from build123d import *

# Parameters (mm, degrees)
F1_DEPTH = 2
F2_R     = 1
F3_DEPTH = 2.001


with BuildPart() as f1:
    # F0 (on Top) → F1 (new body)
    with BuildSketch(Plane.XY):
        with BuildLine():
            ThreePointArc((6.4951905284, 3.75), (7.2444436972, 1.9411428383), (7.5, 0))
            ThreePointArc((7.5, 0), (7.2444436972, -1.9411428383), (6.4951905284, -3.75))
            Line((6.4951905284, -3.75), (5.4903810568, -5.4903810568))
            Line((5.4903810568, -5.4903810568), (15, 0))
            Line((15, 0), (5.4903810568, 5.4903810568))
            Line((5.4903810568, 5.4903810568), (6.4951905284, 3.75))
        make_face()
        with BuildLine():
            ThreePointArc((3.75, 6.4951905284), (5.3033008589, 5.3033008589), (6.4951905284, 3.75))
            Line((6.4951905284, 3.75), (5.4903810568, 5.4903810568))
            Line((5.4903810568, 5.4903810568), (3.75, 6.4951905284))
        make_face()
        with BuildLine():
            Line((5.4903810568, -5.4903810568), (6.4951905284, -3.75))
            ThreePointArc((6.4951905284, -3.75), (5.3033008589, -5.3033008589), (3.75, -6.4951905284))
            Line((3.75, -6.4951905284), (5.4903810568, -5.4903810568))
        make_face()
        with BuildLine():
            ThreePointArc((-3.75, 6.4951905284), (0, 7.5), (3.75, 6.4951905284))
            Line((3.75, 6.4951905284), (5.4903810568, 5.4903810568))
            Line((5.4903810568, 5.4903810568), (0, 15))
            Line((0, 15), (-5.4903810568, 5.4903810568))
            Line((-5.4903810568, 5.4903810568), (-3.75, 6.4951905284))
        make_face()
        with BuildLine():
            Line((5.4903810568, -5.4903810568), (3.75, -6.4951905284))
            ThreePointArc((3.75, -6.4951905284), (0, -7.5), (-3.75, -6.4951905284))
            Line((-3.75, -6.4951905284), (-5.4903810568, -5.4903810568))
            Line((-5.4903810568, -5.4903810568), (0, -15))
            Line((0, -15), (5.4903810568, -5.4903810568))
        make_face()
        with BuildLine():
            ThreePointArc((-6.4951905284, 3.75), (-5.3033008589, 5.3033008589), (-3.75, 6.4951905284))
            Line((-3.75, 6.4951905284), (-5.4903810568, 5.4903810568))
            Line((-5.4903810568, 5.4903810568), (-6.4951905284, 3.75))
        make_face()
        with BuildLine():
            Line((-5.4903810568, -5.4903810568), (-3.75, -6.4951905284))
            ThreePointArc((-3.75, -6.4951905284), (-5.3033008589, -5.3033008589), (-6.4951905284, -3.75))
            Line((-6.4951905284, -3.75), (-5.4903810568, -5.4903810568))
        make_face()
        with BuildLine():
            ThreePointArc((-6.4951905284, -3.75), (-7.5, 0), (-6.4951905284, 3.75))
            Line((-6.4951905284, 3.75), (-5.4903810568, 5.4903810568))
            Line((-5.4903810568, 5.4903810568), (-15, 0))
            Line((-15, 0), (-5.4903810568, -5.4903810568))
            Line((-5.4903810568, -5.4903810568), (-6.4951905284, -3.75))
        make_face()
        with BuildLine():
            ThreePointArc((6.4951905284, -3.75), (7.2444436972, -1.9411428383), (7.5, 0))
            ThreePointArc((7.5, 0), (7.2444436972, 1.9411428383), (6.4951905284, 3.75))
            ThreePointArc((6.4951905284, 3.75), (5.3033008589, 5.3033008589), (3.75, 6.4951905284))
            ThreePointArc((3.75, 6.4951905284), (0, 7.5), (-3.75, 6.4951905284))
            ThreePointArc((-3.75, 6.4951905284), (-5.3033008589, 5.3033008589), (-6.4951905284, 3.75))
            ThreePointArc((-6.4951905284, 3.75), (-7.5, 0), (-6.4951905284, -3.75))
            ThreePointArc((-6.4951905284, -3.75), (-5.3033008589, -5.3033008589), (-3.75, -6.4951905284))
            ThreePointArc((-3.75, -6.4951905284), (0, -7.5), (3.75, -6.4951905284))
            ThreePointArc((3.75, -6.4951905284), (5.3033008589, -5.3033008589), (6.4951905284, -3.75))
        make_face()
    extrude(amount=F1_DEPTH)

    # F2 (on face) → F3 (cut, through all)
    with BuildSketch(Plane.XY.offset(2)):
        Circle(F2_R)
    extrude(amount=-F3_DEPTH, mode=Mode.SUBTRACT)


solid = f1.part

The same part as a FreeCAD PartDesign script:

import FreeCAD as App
import Part
import Sketcher
Q = App.Units.Quantity

doc = App.newDocument("Part")
body = doc.addObject("PartDesign::Body", "Body")

# Sketch on XY plane
sketch1 = body.newObject("Sketcher::SketchObject", "Sketch")
sketch1.AttachmentSupport = (doc.getObject("XY_Plane"), [""])
sketch1.MapMode = "FlatFace"
sketch1.addGeometry([
    Part.LineSegment(App.Vector(-5.490381, -5.490381, 0), App.Vector(0, -15, 0)),  # 0
    Part.LineSegment(App.Vector(0, -15, 0), App.Vector(5.490381, -5.490381, 0)),  # 1
    Part.LineSegment(App.Vector(5.490381, -5.490381, 0), App.Vector(15, 0, 0)),  # 2
    Part.LineSegment(App.Vector(15, 0, 0), App.Vector(5.490381, 5.490381, 0)),  # 3
    Part.LineSegment(App.Vector(5.490381, 5.490381, 0), App.Vector(0, 15, 0)),  # 4
    Part.LineSegment(App.Vector(0, 15, 0), App.Vector(-5.490381, 5.490381, 0)),  # 5
    Part.LineSegment(App.Vector(-5.490381, 5.490381, 0), App.Vector(-15, 0, 0)),  # 6
    Part.LineSegment(App.Vector(-15, 0, 0), App.Vector(-5.490381, -5.490381, 0)),  # 7
], False)
sketch1.addConstraint([
    Sketcher.Constraint("Coincident", 0, 2, 1, 1),
    Sketcher.Constraint("Coincident", 1, 2, 2, 1),
    Sketcher.Constraint("Coincident", 2, 2, 3, 1),
    Sketcher.Constraint("Coincident", 3, 2, 4, 1),
    Sketcher.Constraint("Coincident", 4, 2, 5, 1),
    Sketcher.Constraint("Coincident", 5, 2, 6, 1),
    Sketcher.Constraint("Coincident", 6, 2, 7, 1),
    Sketcher.Constraint("Coincident", 7, 2, 0, 1),
    Sketcher.Constraint("Symmetric", 0, 2, 4, 2, -1, 1),
    Sketcher.Constraint("Symmetric", 1, 2, 5, 2, -1, 1),
    Sketcher.Constraint("Symmetric", 2, 2, 6, 2, -1, 1),
    Sketcher.Constraint("Symmetric", 3, 2, 7, 2, -1, 1),
    Sketcher.Constraint("Symmetric", 3, 2, 5, 2, -2),
    Sketcher.Constraint("PointOnObject", 0, 2, -2),
    Sketcher.Constraint("PointOnObject", 2, 2, -1),
    Sketcher.Constraint("Perpendicular", 0, 2),
    Sketcher.Constraint("Equal", 1, 2),
    Sketcher.Constraint("Angle", 0, Q("-60 deg")),
    Sketcher.Constraint("DistanceY", 0, 2, -1, 1, Q("15 mm")),
])
pad1 = body.newObject("PartDesign::Pad", "Pad")
pad1.Profile = sketch1
pad1.Length = 2

# Sketch on XY plane
sketch2 = body.newObject("Sketcher::SketchObject", "Sketch001")
sketch2.AttachmentSupport = (doc.getObject("XY_Plane"), [""])
sketch2.MapMode = "FlatFace"
sketch2.AttachmentOffset = App.Placement(App.Vector(0, 0, 2), App.Rotation())
sketch2.addGeometry(Part.Circle(App.Vector(0, 0, 0), App.Vector(0, 0, 1), 1), False)
sketch2.addConstraint([
    Sketcher.Constraint("Coincident", 0, 3, -1, 1),
    Sketcher.Constraint("Diameter", 0, Q("2 mm")),
])
pocket1 = body.newObject("PartDesign::Pocket", "Pocket")
pocket1.Profile = sketch2
pocket1.Type = "ThroughAll"

doc.recompute()
